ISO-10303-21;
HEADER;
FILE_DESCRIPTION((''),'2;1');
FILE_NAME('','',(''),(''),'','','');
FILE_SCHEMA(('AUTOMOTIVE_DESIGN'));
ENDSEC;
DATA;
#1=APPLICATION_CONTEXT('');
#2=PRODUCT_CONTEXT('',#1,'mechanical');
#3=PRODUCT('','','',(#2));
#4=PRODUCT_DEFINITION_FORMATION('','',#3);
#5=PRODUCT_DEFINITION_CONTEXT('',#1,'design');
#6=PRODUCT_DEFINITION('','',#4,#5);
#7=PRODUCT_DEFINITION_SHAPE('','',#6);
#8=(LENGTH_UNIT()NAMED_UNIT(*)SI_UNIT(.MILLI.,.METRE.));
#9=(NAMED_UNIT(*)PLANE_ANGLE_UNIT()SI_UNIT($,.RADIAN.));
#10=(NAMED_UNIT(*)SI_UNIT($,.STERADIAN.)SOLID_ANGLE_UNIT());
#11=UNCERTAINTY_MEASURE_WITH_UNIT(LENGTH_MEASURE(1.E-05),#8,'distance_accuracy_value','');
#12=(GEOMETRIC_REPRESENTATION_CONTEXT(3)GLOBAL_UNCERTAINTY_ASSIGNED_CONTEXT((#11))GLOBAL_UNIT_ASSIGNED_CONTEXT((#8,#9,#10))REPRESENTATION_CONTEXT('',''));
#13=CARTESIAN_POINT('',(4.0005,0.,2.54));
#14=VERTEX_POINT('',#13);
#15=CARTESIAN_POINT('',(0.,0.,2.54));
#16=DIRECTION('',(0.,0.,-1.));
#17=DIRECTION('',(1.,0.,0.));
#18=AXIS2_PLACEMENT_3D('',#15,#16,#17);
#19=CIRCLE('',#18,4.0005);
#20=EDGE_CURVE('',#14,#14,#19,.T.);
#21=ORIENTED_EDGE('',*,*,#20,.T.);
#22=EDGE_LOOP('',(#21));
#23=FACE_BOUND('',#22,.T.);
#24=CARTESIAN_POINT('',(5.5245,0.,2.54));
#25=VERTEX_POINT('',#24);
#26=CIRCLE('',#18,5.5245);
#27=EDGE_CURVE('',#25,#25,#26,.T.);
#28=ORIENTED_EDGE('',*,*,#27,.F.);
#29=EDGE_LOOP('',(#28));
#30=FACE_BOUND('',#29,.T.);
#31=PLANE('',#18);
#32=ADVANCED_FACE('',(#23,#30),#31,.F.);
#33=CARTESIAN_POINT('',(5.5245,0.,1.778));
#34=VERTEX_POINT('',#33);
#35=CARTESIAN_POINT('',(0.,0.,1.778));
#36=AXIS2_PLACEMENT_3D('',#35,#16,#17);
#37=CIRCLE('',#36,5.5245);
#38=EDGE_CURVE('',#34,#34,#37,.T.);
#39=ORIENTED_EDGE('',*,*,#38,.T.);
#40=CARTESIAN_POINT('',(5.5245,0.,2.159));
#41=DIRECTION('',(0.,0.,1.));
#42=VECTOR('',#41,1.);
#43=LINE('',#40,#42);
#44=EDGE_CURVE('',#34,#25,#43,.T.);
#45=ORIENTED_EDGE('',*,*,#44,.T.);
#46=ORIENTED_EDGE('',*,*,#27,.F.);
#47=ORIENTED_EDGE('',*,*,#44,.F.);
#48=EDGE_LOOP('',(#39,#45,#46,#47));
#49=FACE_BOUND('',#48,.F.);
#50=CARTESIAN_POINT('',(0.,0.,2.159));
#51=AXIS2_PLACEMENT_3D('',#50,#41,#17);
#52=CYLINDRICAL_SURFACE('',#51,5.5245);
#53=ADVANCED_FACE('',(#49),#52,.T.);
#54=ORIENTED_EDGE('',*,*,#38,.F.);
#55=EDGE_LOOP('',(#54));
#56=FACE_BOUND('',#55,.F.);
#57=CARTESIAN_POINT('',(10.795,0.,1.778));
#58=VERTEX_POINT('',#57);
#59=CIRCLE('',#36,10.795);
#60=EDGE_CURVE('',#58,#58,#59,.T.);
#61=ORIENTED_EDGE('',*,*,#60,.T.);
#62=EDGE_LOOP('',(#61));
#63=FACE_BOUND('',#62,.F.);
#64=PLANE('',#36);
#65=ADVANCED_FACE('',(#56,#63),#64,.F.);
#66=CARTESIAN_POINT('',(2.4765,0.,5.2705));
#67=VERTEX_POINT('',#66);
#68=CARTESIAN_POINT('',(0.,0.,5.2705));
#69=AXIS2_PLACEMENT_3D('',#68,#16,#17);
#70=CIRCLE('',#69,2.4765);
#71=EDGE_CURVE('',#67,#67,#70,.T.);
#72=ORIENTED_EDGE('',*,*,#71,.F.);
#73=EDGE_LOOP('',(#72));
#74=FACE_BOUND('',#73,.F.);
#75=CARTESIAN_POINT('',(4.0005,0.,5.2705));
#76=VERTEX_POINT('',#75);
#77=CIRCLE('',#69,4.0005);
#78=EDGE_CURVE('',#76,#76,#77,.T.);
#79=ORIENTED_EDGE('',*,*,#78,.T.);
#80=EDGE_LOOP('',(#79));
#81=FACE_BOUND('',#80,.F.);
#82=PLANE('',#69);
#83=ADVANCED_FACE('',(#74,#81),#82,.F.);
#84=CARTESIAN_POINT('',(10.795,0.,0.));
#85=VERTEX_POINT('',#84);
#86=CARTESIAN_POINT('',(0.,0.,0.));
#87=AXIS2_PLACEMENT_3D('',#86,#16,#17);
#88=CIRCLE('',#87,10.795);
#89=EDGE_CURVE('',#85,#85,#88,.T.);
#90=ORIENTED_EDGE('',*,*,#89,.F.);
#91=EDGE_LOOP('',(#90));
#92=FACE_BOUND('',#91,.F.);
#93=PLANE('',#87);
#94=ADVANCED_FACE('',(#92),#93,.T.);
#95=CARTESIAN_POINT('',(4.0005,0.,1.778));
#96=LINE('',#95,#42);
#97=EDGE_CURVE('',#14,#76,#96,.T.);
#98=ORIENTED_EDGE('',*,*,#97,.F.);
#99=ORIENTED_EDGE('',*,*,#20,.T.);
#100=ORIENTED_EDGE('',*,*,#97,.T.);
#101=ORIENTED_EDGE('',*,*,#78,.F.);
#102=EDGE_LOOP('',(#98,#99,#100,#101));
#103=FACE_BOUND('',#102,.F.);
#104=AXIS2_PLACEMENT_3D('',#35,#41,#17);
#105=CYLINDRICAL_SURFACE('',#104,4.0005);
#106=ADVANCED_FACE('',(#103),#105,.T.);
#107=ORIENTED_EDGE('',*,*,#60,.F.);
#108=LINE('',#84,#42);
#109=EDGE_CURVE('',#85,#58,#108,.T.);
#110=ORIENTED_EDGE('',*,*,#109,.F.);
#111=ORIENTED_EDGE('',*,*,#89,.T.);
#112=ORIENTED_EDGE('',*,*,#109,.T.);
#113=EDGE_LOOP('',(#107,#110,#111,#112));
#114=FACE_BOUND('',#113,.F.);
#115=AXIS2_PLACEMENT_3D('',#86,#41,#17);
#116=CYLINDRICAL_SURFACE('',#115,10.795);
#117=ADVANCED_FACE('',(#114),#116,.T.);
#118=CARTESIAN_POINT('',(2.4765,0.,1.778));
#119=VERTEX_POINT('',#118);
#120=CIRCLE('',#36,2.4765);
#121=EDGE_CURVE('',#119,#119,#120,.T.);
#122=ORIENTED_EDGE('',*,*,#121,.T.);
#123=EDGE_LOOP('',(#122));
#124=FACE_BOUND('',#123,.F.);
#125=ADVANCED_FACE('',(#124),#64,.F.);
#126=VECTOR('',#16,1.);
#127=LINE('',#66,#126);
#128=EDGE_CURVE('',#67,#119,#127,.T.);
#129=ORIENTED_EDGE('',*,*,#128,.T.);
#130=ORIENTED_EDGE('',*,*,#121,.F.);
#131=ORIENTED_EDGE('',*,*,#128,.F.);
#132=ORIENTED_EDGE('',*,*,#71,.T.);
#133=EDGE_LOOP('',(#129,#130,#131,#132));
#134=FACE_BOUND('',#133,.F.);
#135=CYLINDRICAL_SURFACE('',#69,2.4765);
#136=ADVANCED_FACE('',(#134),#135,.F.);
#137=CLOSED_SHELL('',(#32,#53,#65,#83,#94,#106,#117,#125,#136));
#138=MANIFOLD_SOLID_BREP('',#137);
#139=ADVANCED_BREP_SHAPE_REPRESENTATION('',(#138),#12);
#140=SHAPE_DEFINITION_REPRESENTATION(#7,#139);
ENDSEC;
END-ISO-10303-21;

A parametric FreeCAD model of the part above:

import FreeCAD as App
import Part
import Sketcher
from FreeCAD import Vector
Q = App.Units.Quantity

doc = App.newDocument("Part")
body = doc.addObject("PartDesign::Body", "Body")

sketch1 = body.newObject("Sketcher::SketchObject", "Sketch")
sketch1.AttachmentSupport = (doc.getObject("XZ_Plane"), [""])
sketch1.MapMode = "FlatFace"
sketch1.addGeometry([
    Part.LineSegment(Vector(0, 1.8, 0), Vector(0, 0, 0)),
    Part.LineSegment(Vector(0, 0, 0), Vector(10.8, 0, 0)),
    Part.LineSegment(Vector(10.8, 0, 0), Vector(10.8, 1.8, 0)),
    Part.LineSegment(Vector(10.8, 1.8, 0), Vector(5.5, 1.8, 0)),
    Part.LineSegment(Vector(5.5, 1.8, 0), Vector(5.5, 2.5, 0)),
    Part.LineSegment(Vector(5.5, 2.5, 0), Vector(4, 2.5, 0)),
    Part.LineSegment(Vector(4, 2.5, 0), Vector(4, 5.3, 0)),
    Part.LineSegment(Vector(4, 5.3, 0), Vector(2.5, 5.3, 0)),
    Part.LineSegment(Vector(2.5, 5.3, 0), Vector(2.5, 1.8, 0)),
    Part.LineSegment(Vector(2.5, 1.8, 0), Vector(0, 1.8, 0)),
], False)
sketch1.addConstraint([
    Sketcher.Constraint("Coincident", 0, 2, 1, 1),
    Sketcher.Constraint("Coincident", 1, 2, 2, 1),
    Sketcher.Constraint("Coincident", 2, 2, 3, 1),
    Sketcher.Constraint("Coincident", 3, 2, 4, 1),
    Sketcher.Constraint("Coincident", 4, 2, 5, 1),
    Sketcher.Constraint("Coincident", 5, 2, 6, 1),
    Sketcher.Constraint("Coincident", 6, 2, 7, 1),
    Sketcher.Constraint("Coincident", 7, 2, 8, 1),
    Sketcher.Constraint("Coincident", 8, 2, 9, 1),
    Sketcher.Constraint("Coincident", 9, 2, 0, 1),
    Sketcher.Constraint("Vertical", 0),
    Sketcher.Constraint("Horizontal", 1),
    Sketcher.Constraint("Vertical", 2),
    Sketcher.Constraint("Horizontal", 3),
    Sketcher.Constraint("Vertical", 4),
    Sketcher.Constraint("Horizontal", 5),
    Sketcher.Constraint("Vertical", 6),
    Sketcher.Constraint("Horizontal", 7),
    Sketcher.Constraint("Vertical", 8),
    Sketcher.Constraint("Horizontal", 9),
    Sketcher.Constraint("Coincident", 0, 2, -1, 1),
    Sketcher.Constraint("Horizontal", 3, 2, 8, 2),
    Sketcher.Constraint("Equal", 5, 7),
    Sketcher.Constraint("DistanceX", 5, 2, 5, 1, Q("0.06 in")),
    Sketcher.Constraint("DistanceY", 0, 2, 0, 1, Q("0.07 in")),
    Sketcher.Constraint("DistanceY", 4, 1, 4, 2, Q("0.03 in")),
    Sketcher.Constraint("DistanceX", 1, 1, 1, 2, Q("0.425 in")),
    Sketcher.Constraint("DistanceX", 3, 2, 3, 1, Q("0.2075 in")),
    Sketcher.Constraint("DistanceY", 6, 1, 6, 2, Q("0.1075 in")),
])
revolution = body.newObject("PartDesign::Revolution", "Revolution")
revolution.Profile = sketch1
revolution.ReferenceAxis = (sketch1, ["V_Axis"])
revolution.Angle = 360

doc.recompute()
